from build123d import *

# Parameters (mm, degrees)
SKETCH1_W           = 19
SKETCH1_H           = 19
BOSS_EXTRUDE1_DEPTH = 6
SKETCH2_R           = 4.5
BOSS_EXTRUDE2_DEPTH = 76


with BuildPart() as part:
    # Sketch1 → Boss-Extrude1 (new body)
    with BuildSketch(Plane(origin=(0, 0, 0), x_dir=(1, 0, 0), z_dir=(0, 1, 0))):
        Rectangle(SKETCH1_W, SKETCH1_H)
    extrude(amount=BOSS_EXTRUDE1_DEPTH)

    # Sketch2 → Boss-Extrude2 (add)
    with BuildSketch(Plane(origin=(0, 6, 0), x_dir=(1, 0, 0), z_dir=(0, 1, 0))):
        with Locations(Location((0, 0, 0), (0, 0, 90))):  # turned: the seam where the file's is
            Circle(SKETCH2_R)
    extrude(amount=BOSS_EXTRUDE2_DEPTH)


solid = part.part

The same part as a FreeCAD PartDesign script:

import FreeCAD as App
import Part
import Sketcher

V = App.Vector

doc = App.newDocument("Part")
body = doc.addObject("PartDesign::Body", "Body")

# Sketch on XZ plane
sketch1 = body.newObject("Sketcher::SketchObject", "Sketch")
sketch1.AttachmentSupport = (doc.getObject("XZ_Plane"), [""])
sketch1.MapMode = "FlatFace"
sketch1.addGeometry(Part.LineSegment(V(-10, -10, 0), V(-10, 10, 0)), False)
sketch1.addGeometry(Part.LineSegment(V(-10, 10, 0), V(10, 10, 0)), False)
sketch1.addGeometry(Part.LineSegment(V(10, 10, 0), V(10, -10, 0)), False)
sketch1.addGeometry(Part.LineSegment(V(10, -10, 0), V(-10, -10, 0)), False)
sketch1.addConstraint(Sketcher.Constraint("Coincident", 0, 2, 1, 1))
sketch1.addConstraint(Sketcher.Constraint("Coincident", 1, 2, 2, 1))
sketch1.addConstraint(Sketcher.Constraint("Coincident", 2, 2, 3, 1))
sketch1.addConstraint(Sketcher.Constraint("Coincident", 3, 2, 0, 1))
sketch1.addConstraint(Sketcher.Constraint("Vertical", 0))
sketch1.addConstraint(Sketcher.Constraint("Horizontal", 1))
sketch1.addConstraint(Sketcher.Constraint("Vertical", 2))
sketch1.addConstraint(Sketcher.Constraint("Horizontal", 3))
sketch1.addConstraint(Sketcher.Constraint("Symmetric", 0, 2, 2, 2, -1, 1))
sketch1.addConstraint(Sketcher.Constraint("Equal", 3, 0))
sketch1.addConstraint(Sketcher.Constraint("DistanceX", 1, 1, 1, 2, 19.0))
pad1 = body.newObject("PartDesign::Pad", "Pad")
pad1.Profile = sketch1
pad1.Length = 6
pad1.Reversed = True

# Sketch on XZ plane
sketch2 = body.newObject("Sketcher::SketchObject", "Sketch001")
sketch2.AttachmentSupport = (doc.getObject("XZ_Plane"), [""])
sketch2.MapMode = "FlatFace"
sketch2.AttachmentOffset = App.Placement(V(0, 0, -6), App.Rotation())
sketch2.addGeometry(Part.Circle(V(0, 0, 0), V(0, 0, 1), 4.5), False)
sketch2.addConstraint(Sketcher.Constraint("Coincident", 0, 3, -1, 1))
sketch2.addConstraint(Sketcher.Constraint("Diameter", 0, 9.0))
pad2 = body.newObject("PartDesign::Pad", "Pad001")
pad2.Profile = sketch2
pad2.Length = 76
pad2.Reversed = True

doc.recompute()
